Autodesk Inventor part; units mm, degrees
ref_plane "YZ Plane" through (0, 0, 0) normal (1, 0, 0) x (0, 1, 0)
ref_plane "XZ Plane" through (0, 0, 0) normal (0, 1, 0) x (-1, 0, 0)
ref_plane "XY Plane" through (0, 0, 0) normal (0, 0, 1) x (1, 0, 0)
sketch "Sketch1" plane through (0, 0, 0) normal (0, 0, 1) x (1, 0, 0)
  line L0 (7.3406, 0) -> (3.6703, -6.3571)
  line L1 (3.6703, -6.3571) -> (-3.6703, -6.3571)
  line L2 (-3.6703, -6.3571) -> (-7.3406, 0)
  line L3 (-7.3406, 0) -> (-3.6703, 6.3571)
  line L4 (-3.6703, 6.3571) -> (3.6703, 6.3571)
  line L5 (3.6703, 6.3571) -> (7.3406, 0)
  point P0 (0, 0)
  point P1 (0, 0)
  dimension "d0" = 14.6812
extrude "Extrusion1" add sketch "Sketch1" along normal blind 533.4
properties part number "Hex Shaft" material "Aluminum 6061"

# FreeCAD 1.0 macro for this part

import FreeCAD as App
import Part
import Sketcher
Q = App.Units.Quantity

doc = App.newDocument("Part")
body = doc.addObject("PartDesign::Body", "Body")

# Sketch on XY plane
sketch1 = body.newObject("Sketcher::SketchObject", "Sketch")
sketch1.AttachmentSupport = (doc.getObject("XY_Plane"), [""])
sketch1.MapMode = "FlatFace"
sketch1.addGeometry(Part.LineSegment(App.Vector(4, -6, 0), App.Vector(7, 0, 0)), False)
sketch1.addGeometry(Part.LineSegment(App.Vector(7, 0, 0), App.Vector(4, 6, 0)), False)
sketch1.addGeometry(Part.LineSegment(App.Vector(4, 6, 0), App.Vector(-4, 6, 0)), False)
sketch1.addGeometry(Part.LineSegment(App.Vector(-4, 6, 0), App.Vector(-7, 0, 0)), False)
sketch1.addGeometry(Part.LineSegment(App.Vector(-7, 0, 0), App.Vector(-4, -6, 0)), False)
sketch1.addGeometry(Part.LineSegment(App.Vector(-4, -6, 0), App.Vector(4, -6, 0)), False)
sketch1.addConstraint(Sketcher.Constraint("Coincident", 0, 2, 1, 1))
sketch1.addConstraint(Sketcher.Constraint("Coincident", 1, 2, 2, 1))
sketch1.addConstraint(Sketcher.Constraint("Coincident", 2, 2, 3, 1))
sketch1.addConstraint(Sketcher.Constraint("Coincident", 3, 2, 4, 1))
sketch1.addConstraint(Sketcher.Constraint("Coincident", 4, 2, 5, 1))
sketch1.addConstraint(Sketcher.Constraint("Coincident", 5, 2, 0, 1))
sketch1.addConstraint(Sketcher.Constraint("Horizontal", 2))
sketch1.addConstraint(Sketcher.Constraint("Horizontal", 5))
sketch1.addConstraint(Sketcher.Constraint("Symmetric", 0, 2, 3, 2, -1, 1))
sketch1.addConstraint(Sketcher.Constraint("Symmetric", 1, 2, 4, 2, -1, 1))
sketch1.addConstraint(Sketcher.Constraint("PointOnObject", 0, 2, -1))
sketch1.addConstraint(Sketcher.Constraint("Parallel", 0, 3))
sketch1.addConstraint(Sketcher.Constraint("Vertical", 2, 2, 4, 2))
sketch1.addConstraint(Sketcher.Constraint("Angle", 0, Q("59.9998 deg")))
sketch1.addConstraint(Sketcher.Constraint("DistanceX", 3, 2, 0, 2, Q("0.578 in")))
sketch1.addConstraint(Sketcher.Constraint("DistanceX", 2, 2, 2, 1, Q("0.289 in")))
pad1 = body.newObject("PartDesign::Pad", "Pad")
pad1.Profile = sketch1
pad1.Length = Q("21 in")

doc.recompute()
